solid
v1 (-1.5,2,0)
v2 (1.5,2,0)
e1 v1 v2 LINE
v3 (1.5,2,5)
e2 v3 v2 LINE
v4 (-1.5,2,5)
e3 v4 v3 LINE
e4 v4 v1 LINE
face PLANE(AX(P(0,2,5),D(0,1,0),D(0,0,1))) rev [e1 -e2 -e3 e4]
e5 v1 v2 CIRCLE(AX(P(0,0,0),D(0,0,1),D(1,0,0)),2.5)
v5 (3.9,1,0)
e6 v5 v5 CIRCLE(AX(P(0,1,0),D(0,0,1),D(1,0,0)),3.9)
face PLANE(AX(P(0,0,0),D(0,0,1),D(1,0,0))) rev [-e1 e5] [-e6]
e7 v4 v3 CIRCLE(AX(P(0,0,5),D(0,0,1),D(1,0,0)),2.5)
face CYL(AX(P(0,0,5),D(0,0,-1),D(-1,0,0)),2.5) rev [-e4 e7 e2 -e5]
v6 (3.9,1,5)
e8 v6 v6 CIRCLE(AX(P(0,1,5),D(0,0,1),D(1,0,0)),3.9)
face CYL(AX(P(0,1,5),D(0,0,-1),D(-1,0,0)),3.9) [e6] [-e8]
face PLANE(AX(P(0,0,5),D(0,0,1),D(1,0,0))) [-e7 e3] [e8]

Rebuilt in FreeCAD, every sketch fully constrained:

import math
import FreeCAD as App
import Part
import Sketcher

V = App.Vector

doc = App.newDocument("Part")
body = doc.addObject("PartDesign::Body", "Body")

sketch1 = doc.addObject("Sketcher::SketchObject", "Sketch")
body.addObject(sketch1)
sketch1.AttachmentSupport = (doc.XY_Plane, [""])
sketch1.MapMode = "FlatFace"
sketch1.addGeometry([
    Part.Circle(V(0, 1, 0), V(0, 0, 1), 3.9),
    Part.ArcOfCircle(Part.Circle(V(0, 0, 0), V(0, 0, 1), 2.5), math.radians(127), math.radians(413)),
    Part.LineSegment(V(-1.5, 2, 0), V(1.5, 2, 0)),
], False)
sketch1.addConstraint([
    Sketcher.Constraint("Coincident", 1, 1, 2, 1),
    Sketcher.Constraint("Coincident", 2, 2, 1, 2),
    Sketcher.Constraint("Horizontal", 2),
    Sketcher.Constraint("Coincident", 1, 3, -1, 1),
    Sketcher.Constraint("PointOnObject", 0, 3, -2),
    Sketcher.Constraint("Diameter", 0, 7.8),
    Sketcher.Constraint("Radius", 1, 2.5),
    Sketcher.Constraint("DistanceX", 2, 1, 2, 2, 3.0),
    Sketcher.Constraint("DistanceY", -1, 1, 0, 3, 1.0),
])
pad1 = doc.addObject("PartDesign::Pad", "Pad")
body.addObject(pad1)
pad1.Profile = sketch1
pad1.Length = 5

doc.recompute()
